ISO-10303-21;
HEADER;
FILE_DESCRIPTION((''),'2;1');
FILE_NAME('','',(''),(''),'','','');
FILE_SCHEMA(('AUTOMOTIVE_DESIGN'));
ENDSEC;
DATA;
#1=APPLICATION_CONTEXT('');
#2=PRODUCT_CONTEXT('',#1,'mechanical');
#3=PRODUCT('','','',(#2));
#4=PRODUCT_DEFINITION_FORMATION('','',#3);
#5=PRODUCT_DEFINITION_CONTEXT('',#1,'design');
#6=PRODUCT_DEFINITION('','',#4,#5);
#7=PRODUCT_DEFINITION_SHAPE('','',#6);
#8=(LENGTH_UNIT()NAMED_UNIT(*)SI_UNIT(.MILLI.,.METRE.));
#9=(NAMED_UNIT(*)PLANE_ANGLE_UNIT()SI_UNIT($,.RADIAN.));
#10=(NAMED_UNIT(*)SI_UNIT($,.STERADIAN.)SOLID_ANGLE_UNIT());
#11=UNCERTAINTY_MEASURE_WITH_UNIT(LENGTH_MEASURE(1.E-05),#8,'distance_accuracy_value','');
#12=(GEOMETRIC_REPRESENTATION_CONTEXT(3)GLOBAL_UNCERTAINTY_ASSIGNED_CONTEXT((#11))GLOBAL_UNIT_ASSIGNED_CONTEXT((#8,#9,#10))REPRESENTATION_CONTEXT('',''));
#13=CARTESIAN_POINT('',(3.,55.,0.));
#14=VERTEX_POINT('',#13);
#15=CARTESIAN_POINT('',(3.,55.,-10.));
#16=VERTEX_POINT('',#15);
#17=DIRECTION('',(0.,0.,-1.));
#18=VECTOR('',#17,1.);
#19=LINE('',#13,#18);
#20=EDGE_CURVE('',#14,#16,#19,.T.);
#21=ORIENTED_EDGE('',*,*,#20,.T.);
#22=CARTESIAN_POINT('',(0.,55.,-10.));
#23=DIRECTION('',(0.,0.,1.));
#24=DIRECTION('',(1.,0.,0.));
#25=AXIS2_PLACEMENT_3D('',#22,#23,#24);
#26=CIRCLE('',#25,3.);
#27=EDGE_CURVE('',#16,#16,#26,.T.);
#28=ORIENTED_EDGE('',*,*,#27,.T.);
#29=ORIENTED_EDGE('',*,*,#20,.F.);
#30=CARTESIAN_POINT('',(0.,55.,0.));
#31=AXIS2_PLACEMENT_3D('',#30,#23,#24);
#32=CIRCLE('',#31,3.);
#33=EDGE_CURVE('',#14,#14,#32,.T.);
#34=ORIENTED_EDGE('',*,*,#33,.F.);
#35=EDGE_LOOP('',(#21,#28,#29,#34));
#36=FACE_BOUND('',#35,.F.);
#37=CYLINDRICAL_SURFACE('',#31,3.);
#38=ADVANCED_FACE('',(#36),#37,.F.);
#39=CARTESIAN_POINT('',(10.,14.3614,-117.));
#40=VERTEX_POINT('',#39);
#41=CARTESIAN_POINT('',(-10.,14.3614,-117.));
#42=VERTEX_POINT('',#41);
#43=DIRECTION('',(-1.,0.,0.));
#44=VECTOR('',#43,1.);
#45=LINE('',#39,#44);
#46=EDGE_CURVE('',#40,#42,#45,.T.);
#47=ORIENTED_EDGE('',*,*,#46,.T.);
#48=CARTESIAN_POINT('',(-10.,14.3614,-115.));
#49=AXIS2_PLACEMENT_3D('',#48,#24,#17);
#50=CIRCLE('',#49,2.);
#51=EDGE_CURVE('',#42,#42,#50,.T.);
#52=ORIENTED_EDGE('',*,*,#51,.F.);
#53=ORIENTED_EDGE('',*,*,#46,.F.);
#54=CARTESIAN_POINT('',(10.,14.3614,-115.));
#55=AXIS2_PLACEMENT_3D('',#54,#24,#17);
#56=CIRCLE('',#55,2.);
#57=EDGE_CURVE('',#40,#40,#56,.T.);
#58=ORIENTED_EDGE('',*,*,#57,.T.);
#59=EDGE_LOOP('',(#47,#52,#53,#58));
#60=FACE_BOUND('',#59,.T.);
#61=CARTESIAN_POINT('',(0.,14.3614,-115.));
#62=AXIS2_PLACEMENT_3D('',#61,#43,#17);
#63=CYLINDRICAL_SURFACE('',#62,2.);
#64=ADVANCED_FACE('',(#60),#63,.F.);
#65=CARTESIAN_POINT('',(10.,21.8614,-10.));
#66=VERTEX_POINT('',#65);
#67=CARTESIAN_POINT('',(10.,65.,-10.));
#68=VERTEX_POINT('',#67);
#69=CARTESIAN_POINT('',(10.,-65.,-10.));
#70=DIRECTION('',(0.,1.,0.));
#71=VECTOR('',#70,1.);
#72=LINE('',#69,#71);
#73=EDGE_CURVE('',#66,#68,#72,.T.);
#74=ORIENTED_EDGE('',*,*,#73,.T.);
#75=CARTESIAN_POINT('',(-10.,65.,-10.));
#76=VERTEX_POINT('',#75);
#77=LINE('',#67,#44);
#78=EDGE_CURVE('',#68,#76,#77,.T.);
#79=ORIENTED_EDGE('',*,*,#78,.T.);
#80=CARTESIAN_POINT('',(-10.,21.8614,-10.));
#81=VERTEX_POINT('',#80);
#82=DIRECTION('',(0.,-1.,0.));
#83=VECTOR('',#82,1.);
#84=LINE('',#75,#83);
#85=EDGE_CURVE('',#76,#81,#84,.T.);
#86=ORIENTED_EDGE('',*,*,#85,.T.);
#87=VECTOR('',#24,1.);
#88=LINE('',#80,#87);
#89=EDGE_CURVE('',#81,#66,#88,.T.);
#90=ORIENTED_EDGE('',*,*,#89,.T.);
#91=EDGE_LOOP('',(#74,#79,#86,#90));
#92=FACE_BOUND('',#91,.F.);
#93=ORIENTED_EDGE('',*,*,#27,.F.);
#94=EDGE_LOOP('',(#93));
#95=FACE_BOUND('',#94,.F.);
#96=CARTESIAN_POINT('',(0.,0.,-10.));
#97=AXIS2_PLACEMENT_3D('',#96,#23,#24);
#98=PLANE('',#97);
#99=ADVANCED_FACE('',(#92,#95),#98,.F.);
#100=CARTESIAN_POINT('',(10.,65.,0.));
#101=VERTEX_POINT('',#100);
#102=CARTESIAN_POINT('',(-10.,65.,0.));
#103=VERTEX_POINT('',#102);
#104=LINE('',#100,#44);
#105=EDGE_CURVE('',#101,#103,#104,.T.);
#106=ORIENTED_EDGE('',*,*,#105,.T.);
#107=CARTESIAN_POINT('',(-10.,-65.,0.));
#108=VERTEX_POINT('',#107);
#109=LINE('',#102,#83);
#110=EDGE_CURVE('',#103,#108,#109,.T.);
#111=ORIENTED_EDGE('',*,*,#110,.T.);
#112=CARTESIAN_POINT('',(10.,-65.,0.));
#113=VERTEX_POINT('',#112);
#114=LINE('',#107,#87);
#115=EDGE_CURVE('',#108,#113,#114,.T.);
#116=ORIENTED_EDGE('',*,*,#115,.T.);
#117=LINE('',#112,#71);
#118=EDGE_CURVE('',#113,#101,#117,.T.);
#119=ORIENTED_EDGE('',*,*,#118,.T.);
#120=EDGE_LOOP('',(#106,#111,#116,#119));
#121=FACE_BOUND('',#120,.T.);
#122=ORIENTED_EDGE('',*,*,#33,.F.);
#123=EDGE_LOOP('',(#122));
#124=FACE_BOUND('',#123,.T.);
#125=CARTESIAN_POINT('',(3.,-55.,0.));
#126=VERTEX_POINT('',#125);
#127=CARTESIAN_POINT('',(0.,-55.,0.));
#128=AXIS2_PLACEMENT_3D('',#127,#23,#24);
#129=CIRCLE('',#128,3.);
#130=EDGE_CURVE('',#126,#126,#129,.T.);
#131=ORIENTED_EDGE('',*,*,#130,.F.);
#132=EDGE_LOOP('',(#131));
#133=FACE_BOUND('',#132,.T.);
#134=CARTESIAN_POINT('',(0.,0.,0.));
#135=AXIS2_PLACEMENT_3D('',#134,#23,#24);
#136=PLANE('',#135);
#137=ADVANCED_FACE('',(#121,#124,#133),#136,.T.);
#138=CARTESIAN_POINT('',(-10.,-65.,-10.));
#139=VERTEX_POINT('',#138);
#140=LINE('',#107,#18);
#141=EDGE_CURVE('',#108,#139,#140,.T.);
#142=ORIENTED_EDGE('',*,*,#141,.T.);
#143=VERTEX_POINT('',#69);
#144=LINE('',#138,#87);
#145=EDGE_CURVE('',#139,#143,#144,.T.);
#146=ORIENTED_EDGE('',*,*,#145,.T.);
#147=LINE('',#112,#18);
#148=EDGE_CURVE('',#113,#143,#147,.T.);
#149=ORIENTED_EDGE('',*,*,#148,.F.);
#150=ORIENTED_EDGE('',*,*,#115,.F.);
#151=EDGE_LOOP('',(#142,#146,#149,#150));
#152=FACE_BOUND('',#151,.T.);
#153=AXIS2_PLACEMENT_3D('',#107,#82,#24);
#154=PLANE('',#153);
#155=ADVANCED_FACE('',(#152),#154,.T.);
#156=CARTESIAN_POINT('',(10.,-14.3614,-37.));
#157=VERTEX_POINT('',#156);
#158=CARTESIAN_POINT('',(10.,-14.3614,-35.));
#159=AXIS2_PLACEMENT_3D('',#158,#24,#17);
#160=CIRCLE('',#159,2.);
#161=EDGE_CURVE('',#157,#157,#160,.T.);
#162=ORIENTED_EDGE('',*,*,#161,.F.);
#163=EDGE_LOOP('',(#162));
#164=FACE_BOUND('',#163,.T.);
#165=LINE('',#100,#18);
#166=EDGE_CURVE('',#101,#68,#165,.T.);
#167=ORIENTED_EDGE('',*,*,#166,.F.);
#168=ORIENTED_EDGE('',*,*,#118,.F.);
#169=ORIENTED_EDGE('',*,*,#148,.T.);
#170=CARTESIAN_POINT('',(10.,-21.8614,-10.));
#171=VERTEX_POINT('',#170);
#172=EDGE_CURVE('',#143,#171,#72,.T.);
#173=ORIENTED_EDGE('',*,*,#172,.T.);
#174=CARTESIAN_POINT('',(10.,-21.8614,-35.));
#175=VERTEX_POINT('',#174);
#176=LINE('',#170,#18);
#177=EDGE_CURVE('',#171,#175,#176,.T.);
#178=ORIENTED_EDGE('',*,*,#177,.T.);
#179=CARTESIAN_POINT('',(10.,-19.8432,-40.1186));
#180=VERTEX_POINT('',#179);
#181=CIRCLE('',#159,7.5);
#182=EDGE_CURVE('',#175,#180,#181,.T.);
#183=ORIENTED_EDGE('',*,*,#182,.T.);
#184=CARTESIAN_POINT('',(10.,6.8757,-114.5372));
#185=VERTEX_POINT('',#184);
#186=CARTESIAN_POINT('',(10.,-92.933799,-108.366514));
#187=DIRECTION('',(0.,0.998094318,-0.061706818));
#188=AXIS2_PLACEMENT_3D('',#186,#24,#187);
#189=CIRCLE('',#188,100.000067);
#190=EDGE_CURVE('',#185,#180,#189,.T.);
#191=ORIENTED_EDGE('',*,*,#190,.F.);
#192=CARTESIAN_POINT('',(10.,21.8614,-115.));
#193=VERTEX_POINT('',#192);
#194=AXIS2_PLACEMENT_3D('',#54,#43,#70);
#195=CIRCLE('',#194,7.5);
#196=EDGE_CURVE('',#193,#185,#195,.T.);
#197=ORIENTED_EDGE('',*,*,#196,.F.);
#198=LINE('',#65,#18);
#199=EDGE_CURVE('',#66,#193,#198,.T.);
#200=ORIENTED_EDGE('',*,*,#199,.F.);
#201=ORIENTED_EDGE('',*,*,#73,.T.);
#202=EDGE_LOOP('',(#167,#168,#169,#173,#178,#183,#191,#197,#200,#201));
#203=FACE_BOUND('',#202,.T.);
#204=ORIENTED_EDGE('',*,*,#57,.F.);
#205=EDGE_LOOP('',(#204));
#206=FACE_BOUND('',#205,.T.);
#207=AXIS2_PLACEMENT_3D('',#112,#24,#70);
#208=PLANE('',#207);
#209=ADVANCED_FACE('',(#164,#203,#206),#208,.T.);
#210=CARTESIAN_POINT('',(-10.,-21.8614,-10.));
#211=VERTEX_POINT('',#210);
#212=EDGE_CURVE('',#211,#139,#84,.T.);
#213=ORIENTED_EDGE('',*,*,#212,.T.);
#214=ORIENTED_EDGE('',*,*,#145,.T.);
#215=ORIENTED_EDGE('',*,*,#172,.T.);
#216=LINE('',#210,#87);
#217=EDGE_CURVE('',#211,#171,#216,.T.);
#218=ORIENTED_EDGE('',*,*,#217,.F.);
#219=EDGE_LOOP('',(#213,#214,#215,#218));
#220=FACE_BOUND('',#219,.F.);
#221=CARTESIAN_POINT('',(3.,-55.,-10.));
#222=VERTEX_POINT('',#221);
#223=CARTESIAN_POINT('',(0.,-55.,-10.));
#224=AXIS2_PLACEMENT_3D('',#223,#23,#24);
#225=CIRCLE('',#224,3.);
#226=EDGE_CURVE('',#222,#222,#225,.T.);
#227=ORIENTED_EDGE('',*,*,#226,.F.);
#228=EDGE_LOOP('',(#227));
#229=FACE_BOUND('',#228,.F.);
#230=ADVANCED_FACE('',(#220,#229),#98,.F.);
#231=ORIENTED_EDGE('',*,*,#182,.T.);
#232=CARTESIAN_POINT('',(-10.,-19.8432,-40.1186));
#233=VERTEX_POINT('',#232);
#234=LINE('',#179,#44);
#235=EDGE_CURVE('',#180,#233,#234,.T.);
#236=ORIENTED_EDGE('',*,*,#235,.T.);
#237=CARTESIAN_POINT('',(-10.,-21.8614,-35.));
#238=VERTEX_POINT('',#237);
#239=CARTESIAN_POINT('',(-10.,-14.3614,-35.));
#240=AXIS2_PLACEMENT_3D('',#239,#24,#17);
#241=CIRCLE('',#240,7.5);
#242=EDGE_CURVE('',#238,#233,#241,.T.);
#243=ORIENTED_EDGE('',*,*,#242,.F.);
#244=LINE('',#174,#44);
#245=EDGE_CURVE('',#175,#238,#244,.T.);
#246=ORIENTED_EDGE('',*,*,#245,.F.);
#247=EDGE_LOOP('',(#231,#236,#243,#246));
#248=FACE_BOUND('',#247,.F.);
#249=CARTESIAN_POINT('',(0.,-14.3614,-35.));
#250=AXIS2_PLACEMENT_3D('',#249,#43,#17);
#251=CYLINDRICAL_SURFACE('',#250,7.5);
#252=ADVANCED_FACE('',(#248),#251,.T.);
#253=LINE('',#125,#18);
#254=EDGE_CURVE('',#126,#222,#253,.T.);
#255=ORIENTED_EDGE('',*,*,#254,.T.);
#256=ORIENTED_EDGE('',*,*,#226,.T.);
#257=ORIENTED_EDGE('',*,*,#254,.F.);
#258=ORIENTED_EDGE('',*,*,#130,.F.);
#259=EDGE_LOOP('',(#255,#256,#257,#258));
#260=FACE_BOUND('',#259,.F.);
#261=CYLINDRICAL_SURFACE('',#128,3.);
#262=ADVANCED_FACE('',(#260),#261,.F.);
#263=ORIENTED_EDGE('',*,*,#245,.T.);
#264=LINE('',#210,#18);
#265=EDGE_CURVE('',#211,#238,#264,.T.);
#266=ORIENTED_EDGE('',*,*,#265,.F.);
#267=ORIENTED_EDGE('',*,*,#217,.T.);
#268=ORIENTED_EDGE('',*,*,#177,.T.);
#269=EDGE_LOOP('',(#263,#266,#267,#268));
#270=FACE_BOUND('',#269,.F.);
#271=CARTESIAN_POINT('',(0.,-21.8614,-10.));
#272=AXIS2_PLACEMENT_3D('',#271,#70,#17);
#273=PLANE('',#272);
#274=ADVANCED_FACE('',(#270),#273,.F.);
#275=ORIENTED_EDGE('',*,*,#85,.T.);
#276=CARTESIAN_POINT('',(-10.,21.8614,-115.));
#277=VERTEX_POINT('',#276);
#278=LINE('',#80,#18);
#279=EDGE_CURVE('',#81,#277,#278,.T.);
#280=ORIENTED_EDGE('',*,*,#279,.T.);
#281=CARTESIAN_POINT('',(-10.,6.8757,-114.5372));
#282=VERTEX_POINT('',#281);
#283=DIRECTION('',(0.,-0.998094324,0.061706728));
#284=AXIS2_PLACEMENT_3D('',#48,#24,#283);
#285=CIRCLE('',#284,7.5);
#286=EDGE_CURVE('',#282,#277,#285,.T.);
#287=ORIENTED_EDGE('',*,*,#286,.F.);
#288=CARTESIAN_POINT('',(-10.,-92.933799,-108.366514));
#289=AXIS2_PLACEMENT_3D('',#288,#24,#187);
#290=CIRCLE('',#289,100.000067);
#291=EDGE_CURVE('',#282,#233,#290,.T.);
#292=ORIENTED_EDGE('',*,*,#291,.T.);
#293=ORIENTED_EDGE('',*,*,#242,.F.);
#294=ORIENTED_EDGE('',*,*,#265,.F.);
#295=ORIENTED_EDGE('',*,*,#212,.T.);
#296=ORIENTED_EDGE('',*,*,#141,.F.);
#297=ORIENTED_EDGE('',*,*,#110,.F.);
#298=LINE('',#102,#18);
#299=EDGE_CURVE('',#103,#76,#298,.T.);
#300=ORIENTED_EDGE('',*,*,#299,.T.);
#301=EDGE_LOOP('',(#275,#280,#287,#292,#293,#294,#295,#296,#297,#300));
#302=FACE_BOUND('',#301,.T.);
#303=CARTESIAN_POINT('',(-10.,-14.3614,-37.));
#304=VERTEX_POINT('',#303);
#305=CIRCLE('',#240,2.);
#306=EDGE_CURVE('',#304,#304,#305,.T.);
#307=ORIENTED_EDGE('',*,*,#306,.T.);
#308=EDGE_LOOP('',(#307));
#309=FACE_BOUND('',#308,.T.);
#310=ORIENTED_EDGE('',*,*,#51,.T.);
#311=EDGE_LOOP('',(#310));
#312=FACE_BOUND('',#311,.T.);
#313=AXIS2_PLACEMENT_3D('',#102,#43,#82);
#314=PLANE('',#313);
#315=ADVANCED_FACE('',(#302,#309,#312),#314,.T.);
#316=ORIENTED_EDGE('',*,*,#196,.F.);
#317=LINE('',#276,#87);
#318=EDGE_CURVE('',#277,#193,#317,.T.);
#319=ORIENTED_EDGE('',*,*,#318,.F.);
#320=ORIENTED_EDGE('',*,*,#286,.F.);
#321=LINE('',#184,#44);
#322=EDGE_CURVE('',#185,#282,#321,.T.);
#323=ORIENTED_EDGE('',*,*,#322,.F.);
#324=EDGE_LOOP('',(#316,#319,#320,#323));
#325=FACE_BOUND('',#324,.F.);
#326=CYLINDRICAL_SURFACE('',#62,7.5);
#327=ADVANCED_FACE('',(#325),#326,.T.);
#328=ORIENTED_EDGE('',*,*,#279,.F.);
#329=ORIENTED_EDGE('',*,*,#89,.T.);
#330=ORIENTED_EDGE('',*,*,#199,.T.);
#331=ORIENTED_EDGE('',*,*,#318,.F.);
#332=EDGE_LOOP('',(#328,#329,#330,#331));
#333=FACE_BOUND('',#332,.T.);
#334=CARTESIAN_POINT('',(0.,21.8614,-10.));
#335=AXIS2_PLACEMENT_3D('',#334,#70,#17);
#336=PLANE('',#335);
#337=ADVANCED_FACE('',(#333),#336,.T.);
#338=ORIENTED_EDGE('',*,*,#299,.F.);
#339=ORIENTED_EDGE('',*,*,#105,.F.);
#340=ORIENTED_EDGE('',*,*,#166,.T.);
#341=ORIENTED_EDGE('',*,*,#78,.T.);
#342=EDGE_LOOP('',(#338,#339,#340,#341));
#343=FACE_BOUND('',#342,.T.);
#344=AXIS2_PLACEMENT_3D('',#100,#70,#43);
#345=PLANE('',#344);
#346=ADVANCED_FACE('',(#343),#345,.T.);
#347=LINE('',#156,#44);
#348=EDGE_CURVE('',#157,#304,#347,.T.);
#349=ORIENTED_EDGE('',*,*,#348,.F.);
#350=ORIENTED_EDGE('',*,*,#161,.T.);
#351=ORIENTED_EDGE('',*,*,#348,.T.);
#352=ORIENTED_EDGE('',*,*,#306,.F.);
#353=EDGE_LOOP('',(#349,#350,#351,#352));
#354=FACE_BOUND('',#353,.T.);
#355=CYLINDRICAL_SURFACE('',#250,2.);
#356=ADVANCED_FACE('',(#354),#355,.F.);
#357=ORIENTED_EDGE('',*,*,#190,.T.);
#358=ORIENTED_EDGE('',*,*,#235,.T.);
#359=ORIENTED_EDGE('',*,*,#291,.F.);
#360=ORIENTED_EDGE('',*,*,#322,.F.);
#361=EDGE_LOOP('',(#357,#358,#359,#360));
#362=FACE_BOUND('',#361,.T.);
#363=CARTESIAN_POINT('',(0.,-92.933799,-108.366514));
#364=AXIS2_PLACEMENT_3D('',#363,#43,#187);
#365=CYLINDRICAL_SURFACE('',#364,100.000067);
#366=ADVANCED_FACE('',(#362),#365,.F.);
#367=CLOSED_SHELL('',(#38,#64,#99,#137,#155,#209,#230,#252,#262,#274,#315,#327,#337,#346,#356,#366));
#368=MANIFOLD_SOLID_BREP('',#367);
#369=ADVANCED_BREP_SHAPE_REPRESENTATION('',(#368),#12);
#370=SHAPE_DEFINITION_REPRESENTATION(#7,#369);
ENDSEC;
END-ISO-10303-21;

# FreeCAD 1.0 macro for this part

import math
import FreeCAD as App
import Part
import Sketcher


def add_polygon(sketch, points):
    """Adds a closed chain of lines whose ends are joined by coincident constraints."""
    first, n = sketch.GeometryCount, len(points)
    for a, b in zip(points, points[1:] + points[:1]):
        sketch.addGeometry(Part.LineSegment(App.Vector(*a, 0), App.Vector(*b, 0)), False)
    for i in range(n):
        sketch.addConstraint(Sketcher.Constraint("Coincident", first + i, 2, first + (i + 1) % n, 1))

doc = App.newDocument("Part")
body = doc.addObject("PartDesign::Body", "Body")

# Sketch on XY plane
sketch1 = doc.addObject("Sketcher::SketchObject", "Sketch")
body.addObject(sketch1)
sketch1.AttachmentSupport = (doc.XY_Plane, [""])
sketch1.MapMode = "FlatFace"
add_polygon(sketch1, [(-10, 65), (-10, -65), (10, -65), (10, 65)])  # lines 0-3
sketch1.addGeometry(Part.Circle(App.Vector(0, -55, 0), App.Vector(0, 0, 1), 3), False)  # 4
sketch1.addGeometry(Part.Circle(App.Vector(0, 55, 0), App.Vector(0, 0, 1), 3), False)  # 5
sketch1.addConstraint(Sketcher.Constraint("Vertical", 0))
sketch1.addConstraint(Sketcher.Constraint("Horizontal", 1))
sketch1.addConstraint(Sketcher.Constraint("Vertical", 2))
sketch1.addConstraint(Sketcher.Constraint("Horizontal", 3))
sketch1.addConstraint(Sketcher.Constraint("Equal", 4, 5))
sketch1.addConstraint(Sketcher.Constraint("Symmetric", 4, 3, 5, 3, -1, 1))
sketch1.addConstraint(Sketcher.Constraint("Symmetric", 0, 2, 2, 2, -1, 1))
sketch1.addConstraint(Sketcher.Constraint("PointOnObject", 4, 3, -2))
sketch1.addConstraint(Sketcher.Constraint("Diameter", 4, 6.0))
sketch1.addConstraint(Sketcher.Constraint("DistanceX", 1, 1, 1, 2, 20.0))
sketch1.addConstraint(Sketcher.Constraint("DistanceY", 0, 2, 0, 1, 130.0))
sketch1.addConstraint(Sketcher.Constraint("DistanceY", 4, 3, 5, 3, 110.0))
pad1 = doc.addObject("PartDesign::Pad", "Pad")
body.addObject(pad1)
pad1.Profile = sketch1
pad1.Length = 10
pad1.Reversed = True

# Sketch on YZ plane
sketch2 = doc.addObject("Sketcher::SketchObject", "Sketch001")
body.addObject(sketch2)
sketch2.AttachmentSupport = (doc.YZ_Plane, [""])
sketch2.MapMode = "FlatFace"
sketch2.addGeometry(Part.LineSegment(App.Vector(21.8614, -115, 0), App.Vector(21.8614, -10, 0)), False)
sketch2.addGeometry(Part.LineSegment(App.Vector(21.8614, -10, 0), App.Vector(-21.8614, -10, 0)), False)
sketch2.addGeometry(Part.LineSegment(App.Vector(-21.8614, -10, 0), App.Vector(-21.8614, -35, 0)), False)
sketch2.addGeometry(Part.ArcOfCircle(Part.Circle(App.Vector(-14.3614, -35, 0), App.Vector(0, 0, 1), 7.5), math.radians(180), math.radians(223.03765)), False)
sketch2.addGeometry(Part.ArcOfCircle(Part.Circle(App.Vector(-92.9337, -108.3665, 0), App.Vector(0, 0, 1), 99.999969), math.radians(-3.537799), math.radians(43.037674)), False)
sketch2.addGeometry(Part.ArcOfCircle(Part.Circle(App.Vector(14.3614, -115, 0), App.Vector(0, 0, 1), 7.5), math.radians(176.462217), math.radians(360)), False)
sketch2.addGeometry(Part.Circle(App.Vector(14.3614, -115, 0), App.Vector(0, 0, 1), 2), False)
sketch2.addGeometry(Part.Circle(App.Vector(-14.3614, -35, 0), App.Vector(0, 0, 1), 2), False)
sketch2.addConstraint(Sketcher.Constraint("Coincident", 0, 2, 1, 1))
sketch2.addConstraint(Sketcher.Constraint("Coincident", 1, 2, 2, 1))
sketch2.addConstraint(Sketcher.Constraint("Tangent", 2, 2, 3, 1))
sketch2.addConstraint(Sketcher.Constraint("Tangent", 3, 2, 4, 2))
sketch2.addConstraint(Sketcher.Constraint("Tangent", 4, 1, 5, 1))
sketch2.addConstraint(Sketcher.Constraint("Tangent", 5, 2, 0, 1))
sketch2.addConstraint(Sketcher.Constraint("Vertical", 0))
sketch2.addConstraint(Sketcher.Constraint("Horizontal", 1))
sketch2.addConstraint(Sketcher.Constraint("Vertical", 2))
sketch2.addConstraint(Sketcher.Constraint("Coincident", 6, 3, 5, 3))
sketch2.addConstraint(Sketcher.Constraint("Coincident", 7, 3, 3, 3))
sketch2.addConstraint(Sketcher.Constraint("Equal", 3, 5))
sketch2.addConstraint(Sketcher.Constraint("Equal", 6, 7))
sketch2.addConstraint(Sketcher.Constraint("Diameter", 6, 4.0))
sketch2.addConstraint(Sketcher.Constraint("Radius", 4, 100.0))
sketch2.addConstraint(Sketcher.Constraint("Radius", 3, 7.5))
sketch2.addConstraint(Sketcher.Constraint("DistanceY", 0, 1, 0, 2, 105.0))
sketch2.addConstraint(Sketcher.Constraint("DistanceY", 2, 2, 2, 1, 25.0))
sketch2.addConstraint(Sketcher.Constraint("DistanceY", 5, 3, -1, 1, 115.0))
sketch2.addConstraint(Sketcher.Constraint("DistanceX", 1, 2, 1, 1, 43.7228))
sketch2.addConstraint(Sketcher.Constraint("DistanceX", 3, 3, -1, 1, 14.3614))
pad2 = doc.addObject("PartDesign::Pad", "Pad001")
body.addObject(pad2)
pad2.Profile = sketch2
pad2.Length = 20
pad2.Midplane = True

doc.recompute()
